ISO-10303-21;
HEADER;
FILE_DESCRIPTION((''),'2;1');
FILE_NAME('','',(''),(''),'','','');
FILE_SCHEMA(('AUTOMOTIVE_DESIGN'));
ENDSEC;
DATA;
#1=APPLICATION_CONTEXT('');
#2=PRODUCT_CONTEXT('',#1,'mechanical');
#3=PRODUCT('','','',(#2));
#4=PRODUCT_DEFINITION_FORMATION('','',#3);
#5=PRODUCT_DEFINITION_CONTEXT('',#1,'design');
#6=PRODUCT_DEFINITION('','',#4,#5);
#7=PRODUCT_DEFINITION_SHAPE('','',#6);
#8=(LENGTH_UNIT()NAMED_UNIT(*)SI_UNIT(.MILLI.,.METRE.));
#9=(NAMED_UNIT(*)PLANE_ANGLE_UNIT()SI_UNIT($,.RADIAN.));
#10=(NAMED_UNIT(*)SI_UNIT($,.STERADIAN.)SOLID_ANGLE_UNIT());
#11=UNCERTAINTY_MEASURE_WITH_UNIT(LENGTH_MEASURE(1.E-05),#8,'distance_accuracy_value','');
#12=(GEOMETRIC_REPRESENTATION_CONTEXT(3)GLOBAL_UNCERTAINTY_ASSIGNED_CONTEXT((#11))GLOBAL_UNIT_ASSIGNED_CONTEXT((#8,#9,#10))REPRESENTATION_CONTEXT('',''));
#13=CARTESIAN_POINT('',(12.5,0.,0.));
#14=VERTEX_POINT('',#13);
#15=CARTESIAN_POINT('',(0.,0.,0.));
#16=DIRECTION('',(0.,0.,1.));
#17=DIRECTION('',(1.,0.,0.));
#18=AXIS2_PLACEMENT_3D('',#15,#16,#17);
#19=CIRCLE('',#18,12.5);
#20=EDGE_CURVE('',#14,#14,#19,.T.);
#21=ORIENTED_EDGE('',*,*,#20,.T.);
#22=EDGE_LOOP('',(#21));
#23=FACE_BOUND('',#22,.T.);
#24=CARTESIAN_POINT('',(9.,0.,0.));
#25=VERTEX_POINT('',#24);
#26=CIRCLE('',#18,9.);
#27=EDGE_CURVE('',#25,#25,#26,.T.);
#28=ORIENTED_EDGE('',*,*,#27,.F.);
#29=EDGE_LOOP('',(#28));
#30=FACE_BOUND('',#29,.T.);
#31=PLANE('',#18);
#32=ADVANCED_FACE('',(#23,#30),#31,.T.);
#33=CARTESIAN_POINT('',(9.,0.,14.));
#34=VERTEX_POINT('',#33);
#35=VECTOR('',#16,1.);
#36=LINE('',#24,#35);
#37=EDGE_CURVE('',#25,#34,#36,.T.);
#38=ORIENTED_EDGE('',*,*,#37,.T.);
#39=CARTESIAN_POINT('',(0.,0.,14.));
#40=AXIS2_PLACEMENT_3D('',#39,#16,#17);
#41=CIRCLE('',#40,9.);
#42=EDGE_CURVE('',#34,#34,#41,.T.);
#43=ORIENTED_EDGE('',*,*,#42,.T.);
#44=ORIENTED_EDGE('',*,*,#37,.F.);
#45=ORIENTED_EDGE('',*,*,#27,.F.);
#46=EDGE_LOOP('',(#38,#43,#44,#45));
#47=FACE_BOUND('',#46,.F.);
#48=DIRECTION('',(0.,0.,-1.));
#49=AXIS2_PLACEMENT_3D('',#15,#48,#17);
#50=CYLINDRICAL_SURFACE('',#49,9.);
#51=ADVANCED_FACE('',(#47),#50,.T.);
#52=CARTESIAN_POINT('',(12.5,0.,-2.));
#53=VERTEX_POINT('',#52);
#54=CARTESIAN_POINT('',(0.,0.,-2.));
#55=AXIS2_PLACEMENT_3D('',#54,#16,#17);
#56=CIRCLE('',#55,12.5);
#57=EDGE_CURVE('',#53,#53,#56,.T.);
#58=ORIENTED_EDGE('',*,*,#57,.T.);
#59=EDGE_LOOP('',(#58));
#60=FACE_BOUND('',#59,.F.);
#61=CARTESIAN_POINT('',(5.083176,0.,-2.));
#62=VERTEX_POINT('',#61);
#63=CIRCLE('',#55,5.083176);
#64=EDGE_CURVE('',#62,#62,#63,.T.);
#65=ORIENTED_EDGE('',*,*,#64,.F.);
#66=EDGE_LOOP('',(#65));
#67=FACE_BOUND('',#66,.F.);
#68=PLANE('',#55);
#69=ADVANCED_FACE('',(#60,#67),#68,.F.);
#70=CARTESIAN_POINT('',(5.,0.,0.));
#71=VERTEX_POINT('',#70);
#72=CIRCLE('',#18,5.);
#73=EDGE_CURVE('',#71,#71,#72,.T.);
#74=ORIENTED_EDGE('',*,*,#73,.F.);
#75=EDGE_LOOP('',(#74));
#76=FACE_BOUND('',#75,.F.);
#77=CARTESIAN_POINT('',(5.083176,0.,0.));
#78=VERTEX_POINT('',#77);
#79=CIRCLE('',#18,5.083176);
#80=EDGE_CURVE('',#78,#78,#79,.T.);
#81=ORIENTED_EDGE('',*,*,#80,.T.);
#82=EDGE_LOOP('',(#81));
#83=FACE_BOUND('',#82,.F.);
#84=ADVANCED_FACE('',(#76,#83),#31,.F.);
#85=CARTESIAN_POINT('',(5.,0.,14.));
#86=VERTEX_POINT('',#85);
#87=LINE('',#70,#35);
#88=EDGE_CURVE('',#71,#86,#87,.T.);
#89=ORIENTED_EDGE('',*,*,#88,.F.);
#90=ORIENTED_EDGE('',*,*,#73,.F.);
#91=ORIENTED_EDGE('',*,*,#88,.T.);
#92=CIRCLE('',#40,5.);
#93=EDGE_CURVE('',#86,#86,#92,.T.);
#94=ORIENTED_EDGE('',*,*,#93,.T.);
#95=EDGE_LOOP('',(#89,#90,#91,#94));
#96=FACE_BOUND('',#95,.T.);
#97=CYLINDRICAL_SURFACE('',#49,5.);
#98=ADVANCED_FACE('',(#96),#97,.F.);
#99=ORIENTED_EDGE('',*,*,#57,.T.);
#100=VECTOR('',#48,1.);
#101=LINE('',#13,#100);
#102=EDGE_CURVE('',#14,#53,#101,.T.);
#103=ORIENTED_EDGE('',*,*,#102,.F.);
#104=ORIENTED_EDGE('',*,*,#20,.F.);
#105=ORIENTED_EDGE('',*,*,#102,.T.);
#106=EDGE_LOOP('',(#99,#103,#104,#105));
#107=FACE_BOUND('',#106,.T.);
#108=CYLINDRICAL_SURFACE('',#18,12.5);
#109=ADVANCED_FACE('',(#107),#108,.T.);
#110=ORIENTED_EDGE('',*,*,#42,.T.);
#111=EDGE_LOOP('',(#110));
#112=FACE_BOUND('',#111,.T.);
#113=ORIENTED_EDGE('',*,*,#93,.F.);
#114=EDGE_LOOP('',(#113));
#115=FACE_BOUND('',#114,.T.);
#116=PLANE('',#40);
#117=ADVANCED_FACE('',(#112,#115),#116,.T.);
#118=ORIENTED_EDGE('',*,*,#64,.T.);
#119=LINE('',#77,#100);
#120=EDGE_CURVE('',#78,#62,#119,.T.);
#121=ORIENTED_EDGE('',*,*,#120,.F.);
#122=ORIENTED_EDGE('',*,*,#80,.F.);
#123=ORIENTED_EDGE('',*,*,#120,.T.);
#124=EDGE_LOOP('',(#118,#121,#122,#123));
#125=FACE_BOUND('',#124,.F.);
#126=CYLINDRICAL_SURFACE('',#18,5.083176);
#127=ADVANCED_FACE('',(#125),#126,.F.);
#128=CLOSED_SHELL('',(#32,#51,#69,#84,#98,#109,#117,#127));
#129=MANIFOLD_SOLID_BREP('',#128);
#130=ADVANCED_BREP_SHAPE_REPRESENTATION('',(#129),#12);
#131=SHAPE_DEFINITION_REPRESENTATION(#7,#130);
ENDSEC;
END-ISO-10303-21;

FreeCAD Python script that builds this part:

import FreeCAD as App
import Part
import Sketcher

V = App.Vector
Q = App.Units.Quantity

doc = App.newDocument("Part")
body = doc.addObject("PartDesign::Body", "Body")

# Sketch on XY plane
sketch1 = doc.addObject("Sketcher::SketchObject", "Sketch")
body.addObject(sketch1)
sketch1.AttachmentSupport = (doc.XY_Plane, [""])
sketch1.MapMode = "FlatFace"
sketch1.addGeometry([
    Part.Circle(V(0, 0, 0), V(0, 0, 1), 9),
    Part.Circle(V(0, 0, 0), V(0, 0, 1), 5),
], False)
sketch1.addConstraint([
    Sketcher.Constraint("Coincident", 0, 3, -1, 1),
    Sketcher.Constraint("Coincident", 1, 3, -1, 1),
    Sketcher.Constraint("Diameter", 0, Q("18 mm")),
    Sketcher.Constraint("Diameter", 1, Q("10 mm")),
])
pad1 = doc.addObject("PartDesign::Pad", "Pad")
body.addObject(pad1)
pad1.Profile = sketch1
pad1.Length = 14

# Sketch on XY plane
sketch2 = doc.addObject("Sketcher::SketchObject", "Sketch001")
body.addObject(sketch2)
sketch2.AttachmentSupport = (doc.XY_Plane, [""])
sketch2.MapMode = "FlatFace"
sketch2.addGeometry([
    Part.Circle(V(0, 0, 0), V(0, 0, 1), 12.5),
    Part.Circle(V(0, 0, 0), V(0, 0, 1), 5.083176),
], False)
sketch2.addConstraint([
    Sketcher.Constraint("Coincident", 0, 3, -1, 1),
    Sketcher.Constraint("Coincident", 1, 3, -1, 1),
    Sketcher.Constraint("Diameter", 0, Q("25 mm")),
    Sketcher.Constraint("Diameter", 1, Q("10.166352 mm")),
])
pad2 = doc.addObject("PartDesign::Pad", "Pad001")
body.addObject(pad2)
pad2.Profile = sketch2
pad2.Length = 2
pad2.Reversed = True

doc.recompute()
